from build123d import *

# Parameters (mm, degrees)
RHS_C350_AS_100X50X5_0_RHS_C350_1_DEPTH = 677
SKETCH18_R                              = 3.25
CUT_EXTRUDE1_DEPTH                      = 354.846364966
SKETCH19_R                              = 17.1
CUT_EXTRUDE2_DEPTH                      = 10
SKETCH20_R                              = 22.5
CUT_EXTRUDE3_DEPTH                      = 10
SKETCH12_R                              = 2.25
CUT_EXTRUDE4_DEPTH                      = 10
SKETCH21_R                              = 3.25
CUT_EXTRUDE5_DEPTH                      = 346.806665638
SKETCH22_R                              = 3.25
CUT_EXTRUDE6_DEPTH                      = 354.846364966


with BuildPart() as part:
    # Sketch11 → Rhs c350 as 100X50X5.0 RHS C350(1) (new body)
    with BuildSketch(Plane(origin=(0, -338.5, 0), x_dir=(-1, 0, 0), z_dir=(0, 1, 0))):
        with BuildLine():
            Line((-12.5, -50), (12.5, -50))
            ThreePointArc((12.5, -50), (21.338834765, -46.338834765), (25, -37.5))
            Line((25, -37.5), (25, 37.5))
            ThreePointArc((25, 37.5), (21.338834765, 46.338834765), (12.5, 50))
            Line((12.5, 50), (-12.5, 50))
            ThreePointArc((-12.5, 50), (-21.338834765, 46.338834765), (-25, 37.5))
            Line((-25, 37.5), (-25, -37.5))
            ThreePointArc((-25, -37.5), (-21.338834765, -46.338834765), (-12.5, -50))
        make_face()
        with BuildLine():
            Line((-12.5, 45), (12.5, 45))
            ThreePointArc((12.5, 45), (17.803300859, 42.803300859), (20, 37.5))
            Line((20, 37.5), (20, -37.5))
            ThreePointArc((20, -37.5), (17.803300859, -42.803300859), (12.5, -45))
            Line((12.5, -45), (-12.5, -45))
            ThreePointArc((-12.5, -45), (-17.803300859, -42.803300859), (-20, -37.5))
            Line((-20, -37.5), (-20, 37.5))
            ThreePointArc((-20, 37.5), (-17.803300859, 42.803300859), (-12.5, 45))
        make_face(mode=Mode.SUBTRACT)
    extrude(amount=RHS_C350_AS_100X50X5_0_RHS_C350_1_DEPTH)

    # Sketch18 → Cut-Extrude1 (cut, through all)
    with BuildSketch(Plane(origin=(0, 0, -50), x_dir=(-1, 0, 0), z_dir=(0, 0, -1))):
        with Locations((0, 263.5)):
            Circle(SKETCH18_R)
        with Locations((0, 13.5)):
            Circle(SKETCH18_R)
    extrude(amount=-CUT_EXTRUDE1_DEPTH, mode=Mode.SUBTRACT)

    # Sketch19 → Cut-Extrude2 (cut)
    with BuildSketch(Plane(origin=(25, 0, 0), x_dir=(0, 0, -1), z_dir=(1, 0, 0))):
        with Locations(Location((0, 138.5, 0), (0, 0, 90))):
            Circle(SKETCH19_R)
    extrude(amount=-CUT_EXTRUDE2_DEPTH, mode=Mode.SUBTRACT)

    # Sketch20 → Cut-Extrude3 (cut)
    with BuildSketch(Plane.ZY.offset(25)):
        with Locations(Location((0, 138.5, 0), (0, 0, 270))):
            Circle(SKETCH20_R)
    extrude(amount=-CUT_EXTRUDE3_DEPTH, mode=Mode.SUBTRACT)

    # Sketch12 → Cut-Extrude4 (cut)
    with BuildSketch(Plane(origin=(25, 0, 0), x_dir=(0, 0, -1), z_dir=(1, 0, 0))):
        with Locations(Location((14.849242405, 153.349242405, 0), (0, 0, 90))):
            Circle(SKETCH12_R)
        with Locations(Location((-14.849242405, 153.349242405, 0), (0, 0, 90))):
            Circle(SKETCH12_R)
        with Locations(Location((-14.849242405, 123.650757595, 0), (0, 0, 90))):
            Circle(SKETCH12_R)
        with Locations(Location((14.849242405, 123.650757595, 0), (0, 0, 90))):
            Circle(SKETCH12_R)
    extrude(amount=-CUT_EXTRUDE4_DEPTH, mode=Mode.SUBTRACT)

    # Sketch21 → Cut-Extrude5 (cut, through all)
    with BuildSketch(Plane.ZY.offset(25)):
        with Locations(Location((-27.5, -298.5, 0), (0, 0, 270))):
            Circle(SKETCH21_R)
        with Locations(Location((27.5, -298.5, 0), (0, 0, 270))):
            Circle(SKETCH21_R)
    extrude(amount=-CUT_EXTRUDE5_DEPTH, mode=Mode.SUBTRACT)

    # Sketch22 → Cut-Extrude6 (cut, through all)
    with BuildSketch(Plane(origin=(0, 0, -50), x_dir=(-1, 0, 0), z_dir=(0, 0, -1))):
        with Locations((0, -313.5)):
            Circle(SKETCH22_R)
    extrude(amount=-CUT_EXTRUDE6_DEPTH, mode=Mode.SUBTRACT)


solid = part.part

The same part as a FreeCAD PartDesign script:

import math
import FreeCAD as App
import Part
import Sketcher

V = App.Vector
Q = App.Units.Quantity

doc = App.newDocument("Part")
body = doc.addObject("PartDesign::Body", "Body")

sketch1 = doc.addObject("Sketcher::SketchObject", "Sketch")
body.addObject(sketch1)
sketch1.AttachmentSupport = (doc.XZ_Plane, [""])
sketch1.MapMode = "FlatFace"
sketch1.AttachmentOffset = App.Placement(V(0, 0, 338.5), App.Rotation())
sketch1.addGeometry([
    Part.LineSegment(V(12.5, -50, 0), V(-12.5, -50, 0)),
    Part.ArcOfCircle(Part.Circle(V(-12.5, -37.5, 0), V(0, 0, 1), 12.5), math.radians(180), math.radians(270)),
    Part.LineSegment(V(-25, -37.5, 0), V(-25, 37.5, 0)),
    Part.ArcOfCircle(Part.Circle(V(-12.5, 37.5, 0), V(0, 0, 1), 12.5), math.radians(90), math.radians(180)),
    Part.LineSegment(V(-12.5, 50, 0), V(12.5, 50, 0)),
    Part.ArcOfCircle(Part.Circle(V(12.5, 37.5, 0), V(0, 0, 1), 12.5), math.radians(0), math.radians(90)),
    Part.LineSegment(V(25, 37.5, 0), V(25, -37.5, 0)),
    Part.ArcOfCircle(Part.Circle(V(12.5, -37.5, 0), V(0, 0, 1), 12.5), math.radians(-90), math.radians(0)),
    Part.ArcOfCircle(Part.Circle(V(12.5, 37.5, 0), V(0, 0, 1), 7.5), math.radians(0), math.radians(90)),
    Part.LineSegment(V(12.5, 45, 0), V(-12.5, 45, 0)),
    Part.ArcOfCircle(Part.Circle(V(-12.5, 37.5, 0), V(0, 0, 1), 7.5), math.radians(90), math.radians(180)),
    Part.LineSegment(V(-20, 37.5, 0), V(-20, -37.5, 0)),
    Part.ArcOfCircle(Part.Circle(V(-12.5, -37.5, 0), V(0, 0, 1), 7.5), math.radians(180), math.radians(270)),
    Part.LineSegment(V(-12.5, -45, 0), V(12.5, -45, 0)),
    Part.ArcOfCircle(Part.Circle(V(12.5, -37.5, 0), V(0, 0, 1), 7.5), math.radians(-90), math.radians(0)),
    Part.LineSegment(V(20, -37.5, 0), V(20, 37.5, 0)),
], False)
sketch1.addConstraint([
    Sketcher.Constraint("Tangent", 0, 2, 1, 2),
    Sketcher.Constraint("Tangent", 1, 1, 2, 1),
    Sketcher.Constraint("Tangent", 2, 2, 3, 2),
    Sketcher.Constraint("Tangent", 3, 1, 4, 1),
    Sketcher.Constraint("Tangent", 4, 2, 5, 2),
    Sketcher.Constraint("Tangent", 5, 1, 6, 1),
    Sketcher.Constraint("Tangent", 6, 2, 7, 2),
    Sketcher.Constraint("Tangent", 7, 1, 0, 1),
    Sketcher.Constraint("Tangent", 8, 2, 9, 1),
    Sketcher.Constraint("Tangent", 9, 2, 10, 1),
    Sketcher.Constraint("Tangent", 10, 2, 11, 1),
    Sketcher.Constraint("Tangent", 11, 2, 12, 1),
    Sketcher.Constraint("Tangent", 12, 2, 13, 1),
    Sketcher.Constraint("Tangent", 13, 2, 14, 1),
    Sketcher.Constraint("Tangent", 14, 2, 15, 1),
    Sketcher.Constraint("Tangent", 15, 2, 8, 1),
    Sketcher.Constraint("Horizontal", 0),
    Sketcher.Constraint("Vertical", 2),
    Sketcher.Constraint("Horizontal", 4),
    Sketcher.Constraint("Vertical", 6),
    Sketcher.Constraint("Horizontal", 9),
    Sketcher.Constraint("Vertical", 11),
    Sketcher.Constraint("Horizontal", 13),
    Sketcher.Constraint("Vertical", 15),
    Sketcher.Constraint("Coincident", 8, 3, 5, 3),
    Sketcher.Constraint("Coincident", 10, 3, 3, 3),
    Sketcher.Constraint("Coincident", 12, 3, 1, 3),
    Sketcher.Constraint("Equal", 1, 3),
    Sketcher.Constraint("Equal", 3, 5),
    Sketcher.Constraint("Equal", 5, 7),
    Sketcher.Constraint("Equal", 12, 14),
    Sketcher.Constraint("Symmetric", 1, 3, 5, 3, -1, 1),
    Sketcher.Constraint("Radius", 1, Q("12.5 mm")),
    Sketcher.Constraint("Radius", 8, Q("7.5 mm")),
    Sketcher.Constraint("DistanceX", 0, 2, 0, 1, Q("25 mm")),
    Sketcher.Constraint("DistanceY", 2, 1, 2, 2, Q("75 mm")),
])
pad1 = doc.addObject("PartDesign::Pad", "Pad")
body.addObject(pad1)
pad1.Profile = sketch1
pad1.Length = 677
pad1.Reversed = True

sketch2 = doc.addObject("Sketcher::SketchObject", "Sketch001")
body.addObject(sketch2)
sketch2.AttachmentSupport = (doc.XY_Plane, [""])
sketch2.MapMode = "FlatFace"
sketch2.AttachmentOffset = App.Placement(V(0, 0, -50), App.Rotation())
sketch2.addGeometry([
    Part.Circle(V(0, 263.5, 0), V(0, 0, 1), 3.25),
    Part.Circle(V(0, 13.5, 0), V(0, 0, 1), 3.25),
], False)
sketch2.addConstraint([
    Sketcher.Constraint("Equal", 0, 1),
    Sketcher.Constraint("PointOnObject", 0, 3, -2),
    Sketcher.Constraint("PointOnObject", 1, 3, -2),
    Sketcher.Constraint("Diameter", 0, Q("6.5 mm")),
    Sketcher.Constraint("DistanceY", 1, 3, 0, 3, Q("250 mm")),
    Sketcher.Constraint("DistanceY", -1, 1, 0, 3, Q("263.5 mm")),
])
pocket1 = doc.addObject("PartDesign::Pocket", "Pocket")
body.addObject(pocket1)
pocket1.Profile = sketch2
pocket1.Type = "ThroughAll"
pocket1.Reversed = True

sketch3 = doc.addObject("Sketcher::SketchObject", "Sketch002")
body.addObject(sketch3)
sketch3.AttachmentSupport = (doc.YZ_Plane, [""])
sketch3.MapMode = "FlatFace"
sketch3.AttachmentOffset = App.Placement(V(0, 0, 25), App.Rotation())
sketch3.addGeometry(Part.Circle(V(138.5, 0, 0), V(0, 0, 1), 17.1), False)
sketch3.addConstraint([
    Sketcher.Constraint("PointOnObject", 0, 3, -1),
    Sketcher.Constraint("Diameter", 0, Q("34.2 mm")),
    Sketcher.Constraint("DistanceX", -1, 1, 0, 3, Q("138.5 mm")),
])
pocket2 = doc.addObject("PartDesign::Pocket", "Pocket001")
body.addObject(pocket2)
pocket2.Profile = sketch3
pocket2.Length = 10

sketch4 = doc.addObject("Sketcher::SketchObject", "Sketch003")
body.addObject(sketch4)
sketch4.AttachmentSupport = (doc.YZ_Plane, [""])
sketch4.MapMode = "FlatFace"
sketch4.AttachmentOffset = App.Placement(V(0, 0, -25), App.Rotation())
sketch4.addGeometry(Part.Circle(V(138.5, 0, 0), V(0, 0, 1), 22.5), False)
sketch4.addConstraint([
    Sketcher.Constraint("PointOnObject", 0, 3, -1),
    Sketcher.Constraint("Diameter", 0, Q("45 mm")),
    Sketcher.Constraint("DistanceX", -1, 1, 0, 3, Q("138.5 mm")),
])
pocket3 = doc.addObject("PartDesign::Pocket", "Pocket002")
body.addObject(pocket3)
pocket3.Profile = sketch4
pocket3.Length = 10
pocket3.Reversed = True

sketch5 = doc.addObject("Sketcher::SketchObject", "Sketch004")
body.addObject(sketch5)
sketch5.AttachmentSupport = (doc.YZ_Plane, [""])
sketch5.MapMode = "FlatFace"
sketch5.AttachmentOffset = App.Placement(V(0, 0, 25), App.Rotation())
sketch5.addGeometry([
    Part.Circle(V(153.349242, -14.849242, 0), V(0, 0, 1), 2.25),
    Part.Circle(V(153.349242, 14.849242, 0), V(0, 0, 1), 2.25),
    Part.Circle(V(123.650758, 14.849242, 0), V(0, 0, 1), 2.25),
    Part.Circle(V(123.650758, -14.849242, 0), V(0, 0, 1), 2.25),
], False)
sketch5.addConstraint([
    Sketcher.Constraint("Equal", 0, 1),
    Sketcher.Constraint("Equal", 1, 2),
    Sketcher.Constraint("Equal", 2, 3),
    Sketcher.Constraint("Symmetric", 0, 3, 1, 3, -1),
    Sketcher.Constraint("Symmetric", 2, 3, 3, 3, -1),
    Sketcher.Constraint("Horizontal", 1, 3, 2, 3),
    Sketcher.Constraint("Diameter", 0, Q("4.5 mm")),
    Sketcher.Constraint("DistanceX", -1, 1, 0, 3, Q("153.349242 mm")),
    Sketcher.Constraint("DistanceY", 0, 3, -1, 1, Q("14.849242 mm")),
    Sketcher.Constraint("DistanceX", -1, 1, 2, 3, Q("123.650758 mm")),
])
pocket4 = doc.addObject("PartDesign::Pocket", "Pocket003")
body.addObject(pocket4)
pocket4.Profile = sketch5
pocket4.Length = 10

sketch6 = doc.addObject("Sketcher::SketchObject", "Sketch005")
body.addObject(sketch6)
sketch6.AttachmentSupport = (doc.YZ_Plane, [""])
sketch6.MapMode = "FlatFace"
sketch6.AttachmentOffset = App.Placement(V(0, 0, -25), App.Rotation())
sketch6.addGeometry([
    Part.Circle(V(-298.5, -27.5, 0), V(0, 0, 1), 3.25),
    Part.Circle(V(-298.5, 27.5, 0), V(0, 0, 1), 3.25),
], False)
sketch6.addConstraint([
    Sketcher.Constraint("Equal", 0, 1),
    Sketcher.Constraint("Symmetric", 0, 3, 1, 3, -1),
    Sketcher.Constraint("Diameter", 0, Q("6.5 mm")),
    Sketcher.Constraint("DistanceY", 0, 3, 1, 3, Q("55 mm")),
    Sketcher.Constraint("DistanceX", 0, 3, -1, 1, Q("298.5 mm")),
])
pocket5 = doc.addObject("PartDesign::Pocket", "Pocket004")
body.addObject(pocket5)
pocket5.Profile = sketch6
pocket5.Type = "ThroughAll"
pocket5.Reversed = True

sketch7 = doc.addObject("Sketcher::SketchObject", "Sketch006")
body.addObject(sketch7)
sketch7.AttachmentSupport = (doc.XY_Plane, [""])
sketch7.MapMode = "FlatFace"
sketch7.AttachmentOffset = App.Placement(V(0, 0, -50), App.Rotation())
sketch7.addGeometry(Part.Circle(V(0, -313.5, 0), V(0, 0, 1), 3.25), False)
sketch7.addConstraint([
    Sketcher.Constraint("PointOnObject", 0, 3, -2),
    Sketcher.Constraint("Diameter", 0, Q("6.5 mm")),
    Sketcher.Constraint("DistanceY", 0, 3, -1, 1, Q("313.5 mm")),
])
pocket6 = doc.addObject("PartDesign::Pocket", "Pocket005")
body.addObject(pocket6)
pocket6.Profile = sketch7
pocket6.Type = "ThroughAll"
pocket6.Reversed = True

doc.recompute()
